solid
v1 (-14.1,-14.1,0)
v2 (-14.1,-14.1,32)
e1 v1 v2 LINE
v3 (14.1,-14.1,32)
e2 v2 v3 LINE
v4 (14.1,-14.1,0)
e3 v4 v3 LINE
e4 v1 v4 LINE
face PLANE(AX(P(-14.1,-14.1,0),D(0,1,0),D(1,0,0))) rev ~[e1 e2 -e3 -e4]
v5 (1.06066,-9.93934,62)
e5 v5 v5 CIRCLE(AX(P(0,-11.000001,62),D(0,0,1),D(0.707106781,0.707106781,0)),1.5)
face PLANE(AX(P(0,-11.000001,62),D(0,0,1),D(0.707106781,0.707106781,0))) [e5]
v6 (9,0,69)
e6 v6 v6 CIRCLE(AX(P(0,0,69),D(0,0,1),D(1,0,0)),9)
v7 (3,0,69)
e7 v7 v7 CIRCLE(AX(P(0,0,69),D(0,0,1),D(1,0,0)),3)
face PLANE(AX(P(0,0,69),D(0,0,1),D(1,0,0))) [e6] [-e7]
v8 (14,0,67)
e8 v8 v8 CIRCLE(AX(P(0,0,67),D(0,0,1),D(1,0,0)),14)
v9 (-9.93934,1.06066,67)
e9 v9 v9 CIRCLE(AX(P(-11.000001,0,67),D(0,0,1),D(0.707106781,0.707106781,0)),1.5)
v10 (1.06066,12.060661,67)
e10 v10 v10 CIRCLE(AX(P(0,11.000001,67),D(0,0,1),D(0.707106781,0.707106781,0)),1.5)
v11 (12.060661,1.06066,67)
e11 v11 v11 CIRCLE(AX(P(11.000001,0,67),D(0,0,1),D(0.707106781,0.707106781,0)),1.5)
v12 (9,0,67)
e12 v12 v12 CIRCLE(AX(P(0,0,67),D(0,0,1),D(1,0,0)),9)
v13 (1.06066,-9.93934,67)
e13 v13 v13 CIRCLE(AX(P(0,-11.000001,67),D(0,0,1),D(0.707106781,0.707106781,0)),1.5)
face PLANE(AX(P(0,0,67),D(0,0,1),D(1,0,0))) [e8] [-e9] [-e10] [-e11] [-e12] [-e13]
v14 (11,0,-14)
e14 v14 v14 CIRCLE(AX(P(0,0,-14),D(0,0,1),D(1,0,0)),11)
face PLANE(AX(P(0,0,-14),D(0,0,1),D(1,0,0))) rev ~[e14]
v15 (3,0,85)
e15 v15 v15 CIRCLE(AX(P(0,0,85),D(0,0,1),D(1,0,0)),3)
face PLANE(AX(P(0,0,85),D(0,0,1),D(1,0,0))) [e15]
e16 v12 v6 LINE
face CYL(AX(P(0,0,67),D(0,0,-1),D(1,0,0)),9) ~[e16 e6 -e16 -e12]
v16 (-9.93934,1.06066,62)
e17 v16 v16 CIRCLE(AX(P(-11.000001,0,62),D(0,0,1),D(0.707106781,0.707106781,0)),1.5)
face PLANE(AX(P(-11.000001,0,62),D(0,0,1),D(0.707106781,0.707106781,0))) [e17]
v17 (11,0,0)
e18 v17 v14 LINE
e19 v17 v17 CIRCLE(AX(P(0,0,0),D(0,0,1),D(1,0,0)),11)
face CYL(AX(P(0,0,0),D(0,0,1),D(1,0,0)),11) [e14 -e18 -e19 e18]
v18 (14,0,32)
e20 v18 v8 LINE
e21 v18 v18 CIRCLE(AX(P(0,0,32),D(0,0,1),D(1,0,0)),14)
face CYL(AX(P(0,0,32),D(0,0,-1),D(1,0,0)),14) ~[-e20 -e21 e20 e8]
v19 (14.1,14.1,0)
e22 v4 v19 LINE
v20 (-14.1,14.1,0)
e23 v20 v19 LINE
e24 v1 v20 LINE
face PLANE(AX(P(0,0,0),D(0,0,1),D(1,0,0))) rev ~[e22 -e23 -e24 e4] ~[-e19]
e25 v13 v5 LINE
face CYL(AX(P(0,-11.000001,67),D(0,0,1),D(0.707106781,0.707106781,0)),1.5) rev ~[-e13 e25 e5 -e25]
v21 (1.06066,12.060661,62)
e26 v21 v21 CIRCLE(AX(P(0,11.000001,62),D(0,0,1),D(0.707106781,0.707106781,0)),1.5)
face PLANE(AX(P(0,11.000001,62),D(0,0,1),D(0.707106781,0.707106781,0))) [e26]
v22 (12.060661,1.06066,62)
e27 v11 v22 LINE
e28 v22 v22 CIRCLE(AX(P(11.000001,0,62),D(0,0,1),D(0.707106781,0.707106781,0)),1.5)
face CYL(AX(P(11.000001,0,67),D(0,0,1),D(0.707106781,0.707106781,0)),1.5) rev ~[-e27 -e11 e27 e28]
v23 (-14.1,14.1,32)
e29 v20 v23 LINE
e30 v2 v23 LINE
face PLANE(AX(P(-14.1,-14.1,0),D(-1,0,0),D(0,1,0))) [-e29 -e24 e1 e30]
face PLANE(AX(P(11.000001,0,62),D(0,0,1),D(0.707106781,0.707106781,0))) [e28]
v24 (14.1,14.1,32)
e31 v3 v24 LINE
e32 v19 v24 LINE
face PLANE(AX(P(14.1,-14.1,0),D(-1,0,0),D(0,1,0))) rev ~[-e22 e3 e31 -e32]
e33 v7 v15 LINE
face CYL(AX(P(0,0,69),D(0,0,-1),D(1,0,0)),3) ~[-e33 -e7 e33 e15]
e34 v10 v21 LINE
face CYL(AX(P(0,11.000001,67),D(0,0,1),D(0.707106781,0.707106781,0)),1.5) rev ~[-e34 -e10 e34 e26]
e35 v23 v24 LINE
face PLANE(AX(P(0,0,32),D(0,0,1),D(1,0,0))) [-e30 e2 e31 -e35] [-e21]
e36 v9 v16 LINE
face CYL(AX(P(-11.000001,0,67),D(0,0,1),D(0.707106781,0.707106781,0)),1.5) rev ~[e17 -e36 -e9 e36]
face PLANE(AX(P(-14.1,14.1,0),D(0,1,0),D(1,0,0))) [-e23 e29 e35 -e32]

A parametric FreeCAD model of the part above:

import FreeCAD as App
import Part
import Sketcher

V = App.Vector

doc = App.newDocument("Part")
body = doc.addObject("PartDesign::Body", "Body")

# Sketch on XY plane
sketch1 = body.newObject("Sketcher::SketchObject", "Sketch")
sketch1.AttachmentSupport = (doc.getObject("XY_Plane"), [""])
sketch1.MapMode = "FlatFace"
sketch1.addGeometry([
    Part.LineSegment(V(-14.1, 14.1, 0), V(-14.1, -14.1, 0)),
    Part.LineSegment(V(-14.1, -14.1, 0), V(14.1, -14.1, 0)),
    Part.LineSegment(V(14.1, -14.1, 0), V(14.1, 14.1, 0)),
    Part.LineSegment(V(14.1, 14.1, 0), V(-14.1, 14.1, 0)),
], False)
sketch1.addConstraint([
    Sketcher.Constraint("Coincident", 0, 2, 1, 1),
    Sketcher.Constraint("Coincident", 1, 2, 2, 1),
    Sketcher.Constraint("Coincident", 2, 2, 3, 1),
    Sketcher.Constraint("Coincident", 3, 2, 0, 1),
    Sketcher.Constraint("Vertical", 0),
    Sketcher.Constraint("Horizontal", 1),
    Sketcher.Constraint("Vertical", 2),
    Sketcher.Constraint("Horizontal", 3),
    Sketcher.Constraint("Symmetric", 0, 2, 2, 2, -1, 1),
    Sketcher.Constraint("Equal", 3, 0),
    Sketcher.Constraint("DistanceX", 1, 1, 1, 2, 28.2),
])
pad1 = body.newObject("PartDesign::Pad", "Pad")
pad1.Profile = sketch1
pad1.Length = 32

# Sketch on XY plane
sketch2 = body.newObject("Sketcher::SketchObject", "Sketch001")
sketch2.AttachmentSupport = (doc.getObject("XY_Plane"), [""])
sketch2.MapMode = "FlatFace"
sketch2.AttachmentOffset = App.Placement(V(0, 0, 32), App.Rotation())
sketch2.addGeometry(Part.Circle(V(0, 0, 0), V(0, 0, 1), 14), False)
sketch2.addConstraint([
    Sketcher.Constraint("Coincident", 0, 3, -1, 1),
    Sketcher.Constraint("Diameter", 0, 28.0),
])
pad2 = body.newObject("PartDesign::Pad", "Pad001")
pad2.Profile = sketch2
pad2.Length = 35

# Sketch on XY plane
sketch3 = body.newObject("Sketcher::SketchObject", "Sketch002")
sketch3.AttachmentSupport = (doc.getObject("XY_Plane"), [""])
sketch3.MapMode = "FlatFace"
sketch3.AttachmentOffset = App.Placement(V(0, 0, 67), App.Rotation())
sketch3.addGeometry(Part.Circle(V(0, 0, 0), V(0, 0, 1), 9), False)
sketch3.addConstraint([
    Sketcher.Constraint("Coincident", 0, 3, -1, 1),
    Sketcher.Constraint("Diameter", 0, 18.0),
])
pad3 = body.newObject("PartDesign::Pad", "Pad002")
pad3.Profile = sketch3
pad3.Length = 2

# Sketch on XY plane
sketch4 = body.newObject("Sketcher::SketchObject", "Sketch003")
sketch4.AttachmentSupport = (doc.getObject("XY_Plane"), [""])
sketch4.MapMode = "FlatFace"
sketch4.AttachmentOffset = App.Placement(V(0, 0, 69), App.Rotation())
sketch4.addGeometry(Part.Circle(V(0, 0, 0), V(0, 0, 1), 3), False)
sketch4.addConstraint([
    Sketcher.Constraint("Coincident", 0, 3, -1, 1),
    Sketcher.Constraint("Diameter", 0, 6.0),
])
pad4 = body.newObject("PartDesign::Pad", "Pad003")
pad4.Profile = sketch4
pad4.Length = 16

# Sketch on XY plane
sketch5 = body.newObject("Sketcher::SketchObject", "Sketch004")
sketch5.AttachmentSupport = (doc.getObject("XY_Plane"), [""])
sketch5.MapMode = "FlatFace"
sketch5.addGeometry(Part.Circle(V(0, 0, 0), V(0, 0, 1), 11), False)
sketch5.addConstraint([
    Sketcher.Constraint("Coincident", 0, 3, -1, 1),
    Sketcher.Constraint("Diameter", 0, 22.0),
])
pad5 = body.newObject("PartDesign::Pad", "Pad004")
pad5.Profile = sketch5
pad5.Length = 14
pad5.Reversed = True

# Sketch on XY plane
sketch6 = body.newObject("Sketcher::SketchObject", "Sketch005")
sketch6.AttachmentSupport = (doc.getObject("XY_Plane"), [""])
sketch6.MapMode = "FlatFace"
sketch6.AttachmentOffset = App.Placement(V(0, 0, 67), App.Rotation())
sketch6.addGeometry([
    Part.Circle(V(-11.000001, 0, 0), V(0, 0, 1), 1.5),
    Part.Circle(V(0, 11.000001, 0), V(0, 0, 1), 1.5),
    Part.Circle(V(11.000001, 0, 0), V(0, 0, 1), 1.5),
    Part.Circle(V(0, -11.000001, 0), V(0, 0, 1), 1.5),
], False)
sketch6.addConstraint([
    Sketcher.Constraint("Equal", 0, 1),
    Sketcher.Constraint("Equal", 1, 2),
    Sketcher.Constraint("Equal", 2, 3),
    Sketcher.Constraint("Symmetric", 0, 3, 2, 3, -1, 1),
    Sketcher.Constraint("Symmetric", 1, 3, 3, 3, -1, 1),
    Sketcher.Constraint("PointOnObject", 0, 3, -1),
    Sketcher.Constraint("PointOnObject", 1, 3, -2),
    Sketcher.Constraint("Diameter", 0, 3.0),
    Sketcher.Constraint("DistanceX", 0, 3, -1, 1, 11.000001),
    Sketcher.Constraint("DistanceY", -1, 1, 1, 3, 11.000001),
])
pocket1 = body.newObject("PartDesign::Pocket", "Pocket")
pocket1.Profile = sketch6
pocket1.Length = 5

doc.recompute()
